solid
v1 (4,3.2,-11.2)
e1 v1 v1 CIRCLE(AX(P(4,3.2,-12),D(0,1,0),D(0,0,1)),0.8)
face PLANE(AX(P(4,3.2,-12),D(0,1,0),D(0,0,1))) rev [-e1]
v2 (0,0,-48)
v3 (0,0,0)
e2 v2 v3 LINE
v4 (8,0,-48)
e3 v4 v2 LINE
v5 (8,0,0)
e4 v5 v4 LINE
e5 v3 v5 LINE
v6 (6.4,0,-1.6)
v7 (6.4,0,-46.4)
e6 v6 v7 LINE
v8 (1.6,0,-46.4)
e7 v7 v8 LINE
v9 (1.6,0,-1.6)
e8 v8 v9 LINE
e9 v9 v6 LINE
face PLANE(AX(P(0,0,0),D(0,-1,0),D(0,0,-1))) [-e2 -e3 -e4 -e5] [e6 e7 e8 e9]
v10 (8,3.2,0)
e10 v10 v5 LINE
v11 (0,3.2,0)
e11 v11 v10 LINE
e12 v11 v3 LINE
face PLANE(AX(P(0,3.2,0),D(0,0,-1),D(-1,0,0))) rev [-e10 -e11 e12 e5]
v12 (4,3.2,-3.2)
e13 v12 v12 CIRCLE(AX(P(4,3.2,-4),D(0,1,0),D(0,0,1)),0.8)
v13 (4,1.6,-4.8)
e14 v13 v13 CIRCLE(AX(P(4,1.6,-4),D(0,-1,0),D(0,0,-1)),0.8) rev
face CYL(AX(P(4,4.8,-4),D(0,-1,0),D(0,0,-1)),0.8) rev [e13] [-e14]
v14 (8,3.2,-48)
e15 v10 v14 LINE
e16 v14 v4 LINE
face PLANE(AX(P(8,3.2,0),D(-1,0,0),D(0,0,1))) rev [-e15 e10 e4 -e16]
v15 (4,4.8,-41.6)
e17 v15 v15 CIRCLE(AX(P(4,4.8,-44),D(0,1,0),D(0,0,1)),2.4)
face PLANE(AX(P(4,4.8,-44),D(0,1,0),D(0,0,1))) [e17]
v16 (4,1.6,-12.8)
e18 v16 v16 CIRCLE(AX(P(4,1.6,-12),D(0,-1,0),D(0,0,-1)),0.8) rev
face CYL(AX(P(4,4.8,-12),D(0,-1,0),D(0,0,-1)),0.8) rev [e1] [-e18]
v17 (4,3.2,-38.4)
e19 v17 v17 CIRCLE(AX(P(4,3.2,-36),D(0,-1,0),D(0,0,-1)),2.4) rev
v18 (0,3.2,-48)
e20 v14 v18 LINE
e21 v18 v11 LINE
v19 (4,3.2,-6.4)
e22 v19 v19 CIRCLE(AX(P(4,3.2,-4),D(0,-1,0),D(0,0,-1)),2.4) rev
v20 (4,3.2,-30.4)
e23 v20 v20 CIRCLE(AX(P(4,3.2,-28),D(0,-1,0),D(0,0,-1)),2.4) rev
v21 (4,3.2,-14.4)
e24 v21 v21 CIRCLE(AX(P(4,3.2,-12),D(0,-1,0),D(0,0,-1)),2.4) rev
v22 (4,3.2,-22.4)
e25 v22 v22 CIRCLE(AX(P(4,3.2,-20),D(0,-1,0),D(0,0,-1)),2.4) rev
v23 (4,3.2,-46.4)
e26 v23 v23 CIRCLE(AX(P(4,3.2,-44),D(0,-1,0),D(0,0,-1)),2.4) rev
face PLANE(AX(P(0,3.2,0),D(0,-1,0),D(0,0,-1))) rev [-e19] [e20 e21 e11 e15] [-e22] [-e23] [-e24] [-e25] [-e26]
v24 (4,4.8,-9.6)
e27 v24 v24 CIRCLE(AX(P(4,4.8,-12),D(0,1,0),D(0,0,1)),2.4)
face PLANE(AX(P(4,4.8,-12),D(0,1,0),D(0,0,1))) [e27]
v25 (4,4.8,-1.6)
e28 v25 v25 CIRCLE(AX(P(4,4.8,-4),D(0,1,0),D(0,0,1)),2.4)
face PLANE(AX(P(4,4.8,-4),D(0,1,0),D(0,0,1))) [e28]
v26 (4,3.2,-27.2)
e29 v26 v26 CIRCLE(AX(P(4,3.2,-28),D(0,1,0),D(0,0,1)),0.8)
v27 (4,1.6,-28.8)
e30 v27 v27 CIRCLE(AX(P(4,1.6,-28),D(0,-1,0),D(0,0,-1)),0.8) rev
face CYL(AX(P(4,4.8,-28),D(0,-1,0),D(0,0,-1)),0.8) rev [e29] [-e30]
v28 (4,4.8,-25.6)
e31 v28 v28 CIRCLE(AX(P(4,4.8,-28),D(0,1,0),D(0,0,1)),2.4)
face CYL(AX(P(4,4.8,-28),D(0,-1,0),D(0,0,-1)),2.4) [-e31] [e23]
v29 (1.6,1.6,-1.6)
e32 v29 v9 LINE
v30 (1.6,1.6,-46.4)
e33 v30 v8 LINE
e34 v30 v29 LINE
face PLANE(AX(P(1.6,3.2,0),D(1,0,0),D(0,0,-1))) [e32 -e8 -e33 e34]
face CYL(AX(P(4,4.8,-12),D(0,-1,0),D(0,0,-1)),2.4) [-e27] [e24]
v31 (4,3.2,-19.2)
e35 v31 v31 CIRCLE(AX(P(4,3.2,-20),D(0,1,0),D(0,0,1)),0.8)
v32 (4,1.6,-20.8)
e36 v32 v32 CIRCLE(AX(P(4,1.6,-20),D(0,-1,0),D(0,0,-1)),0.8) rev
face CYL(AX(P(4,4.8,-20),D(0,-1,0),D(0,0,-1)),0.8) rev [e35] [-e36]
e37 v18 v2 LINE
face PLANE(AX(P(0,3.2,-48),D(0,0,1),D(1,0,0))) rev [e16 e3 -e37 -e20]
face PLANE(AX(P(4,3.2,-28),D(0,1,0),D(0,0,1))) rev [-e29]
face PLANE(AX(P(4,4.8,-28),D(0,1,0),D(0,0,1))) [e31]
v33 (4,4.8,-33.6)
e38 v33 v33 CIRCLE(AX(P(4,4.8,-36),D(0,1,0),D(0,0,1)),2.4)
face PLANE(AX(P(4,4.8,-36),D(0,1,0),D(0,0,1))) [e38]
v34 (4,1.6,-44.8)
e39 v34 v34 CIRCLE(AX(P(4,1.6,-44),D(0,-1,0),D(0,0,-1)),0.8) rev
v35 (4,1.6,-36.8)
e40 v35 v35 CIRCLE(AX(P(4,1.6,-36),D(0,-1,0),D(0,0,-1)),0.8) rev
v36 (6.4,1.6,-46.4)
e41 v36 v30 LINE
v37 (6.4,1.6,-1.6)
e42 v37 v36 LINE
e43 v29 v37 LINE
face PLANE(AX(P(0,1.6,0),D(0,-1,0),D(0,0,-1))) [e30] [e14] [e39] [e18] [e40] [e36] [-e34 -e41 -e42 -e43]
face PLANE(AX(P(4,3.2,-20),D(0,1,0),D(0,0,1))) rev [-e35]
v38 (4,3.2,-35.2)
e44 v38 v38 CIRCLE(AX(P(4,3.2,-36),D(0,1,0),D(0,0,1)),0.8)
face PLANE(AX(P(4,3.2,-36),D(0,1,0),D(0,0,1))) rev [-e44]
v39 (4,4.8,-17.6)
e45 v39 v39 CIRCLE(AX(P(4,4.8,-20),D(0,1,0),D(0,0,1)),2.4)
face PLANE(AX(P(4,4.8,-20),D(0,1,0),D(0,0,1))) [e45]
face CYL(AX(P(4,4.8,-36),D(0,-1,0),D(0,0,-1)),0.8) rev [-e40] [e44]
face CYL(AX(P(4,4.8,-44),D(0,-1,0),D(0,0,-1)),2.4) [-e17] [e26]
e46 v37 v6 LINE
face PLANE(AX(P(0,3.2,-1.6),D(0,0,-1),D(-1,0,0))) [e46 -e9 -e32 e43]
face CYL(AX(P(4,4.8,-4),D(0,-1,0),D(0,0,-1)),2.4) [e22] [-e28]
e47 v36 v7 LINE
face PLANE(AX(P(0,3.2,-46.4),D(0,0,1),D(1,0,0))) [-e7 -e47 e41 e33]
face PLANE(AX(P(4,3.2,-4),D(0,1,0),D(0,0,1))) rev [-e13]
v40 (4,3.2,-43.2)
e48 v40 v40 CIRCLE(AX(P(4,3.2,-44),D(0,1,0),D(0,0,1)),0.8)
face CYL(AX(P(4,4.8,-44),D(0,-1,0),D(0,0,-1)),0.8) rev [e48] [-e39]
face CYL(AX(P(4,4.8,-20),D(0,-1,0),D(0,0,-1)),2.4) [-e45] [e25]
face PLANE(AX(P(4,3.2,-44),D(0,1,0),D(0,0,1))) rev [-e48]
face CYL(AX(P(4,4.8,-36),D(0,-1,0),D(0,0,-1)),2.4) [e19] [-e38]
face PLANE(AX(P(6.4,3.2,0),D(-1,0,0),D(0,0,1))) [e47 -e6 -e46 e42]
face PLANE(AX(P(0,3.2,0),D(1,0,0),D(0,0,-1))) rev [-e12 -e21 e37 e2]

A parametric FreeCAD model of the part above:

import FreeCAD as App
import Part
import Sketcher

V = App.Vector


def faces_at(feature, points):
    """Names of the faces that lie closest to the given points."""
    faces = feature.Shape.Faces
    near = lambda p: min(range(len(faces)), key=lambda i: faces[i].distToShape(Part.Vertex(*p))[0])
    return sorted({f"Face{near(p) + 1}" for p in points})

doc = App.newDocument("Part")
body = doc.addObject("PartDesign::Body", "Body")

# Sketch on XZ plane
sketch1 = body.newObject("Sketcher::SketchObject", "Sketch")
sketch1.AttachmentSupport = (doc.getObject("XZ_Plane"), [""])
sketch1.MapMode = "FlatFace"
sketch1.addGeometry([
    Part.LineSegment(V(0, -48, 0), V(0, 0, 0)),
    Part.LineSegment(V(0, 0, 0), V(8, 0, 0)),
    Part.LineSegment(V(8, 0, 0), V(8, -48, 0)),
    Part.LineSegment(V(8, -48, 0), V(0, -48, 0)),
], False)
sketch1.addConstraint([
    Sketcher.Constraint("Coincident", 0, 2, 1, 1),
    Sketcher.Constraint("Coincident", 1, 2, 2, 1),
    Sketcher.Constraint("Coincident", 2, 2, 3, 1),
    Sketcher.Constraint("Coincident", 3, 2, 0, 1),
    Sketcher.Constraint("Vertical", 0),
    Sketcher.Constraint("Horizontal", 1),
    Sketcher.Constraint("Vertical", 2),
    Sketcher.Constraint("Horizontal", 3),
    Sketcher.Constraint("Coincident", 0, 2, -1, 1),
    Sketcher.Constraint("DistanceX", 1, 1, 1, 2, 8.0),
    Sketcher.Constraint("DistanceY", 0, 1, 0, 2, 48.0),
])
pad1 = body.newObject("PartDesign::Pad", "Pad")
pad1.Profile = sketch1
pad1.Length = 3.2
pad1.Reversed = True

# Sketch on XZ plane
sketch2 = body.newObject("Sketcher::SketchObject", "Sketch001")
sketch2.AttachmentSupport = (doc.getObject("XZ_Plane"), [""])
sketch2.MapMode = "FlatFace"
sketch2.AttachmentOffset = App.Placement(V(0, 0, -3.2), App.Rotation())
sketch2.addGeometry(Part.Circle(V(4, -4, 0), V(0, 0, 1), 2.4), False)
sketch2.addConstraint([
    Sketcher.Constraint("Diameter", 0, 4.8),
    Sketcher.Constraint("DistanceX", -1, 1, 0, 3, 4.0),
    Sketcher.Constraint("DistanceY", 0, 3, -1, 1, 4.0),
])
pad2 = body.newObject("PartDesign::Pad", "Pad001")
pad2.Profile = sketch2
pad2.Length = 1.6
pad2.Reversed = True
doc.recompute()

linearpattern = body.newObject("PartDesign::LinearPattern", "LinearPattern")
linearpattern.Originals = [pad2]
linearpattern.Direction = (doc.getObject("Z_Axis"), [""])
linearpattern.Mode = "offset"
linearpattern.Offset = 8
linearpattern.Occurrences = 6
linearpattern.Reversed = True
body.Tip = linearpattern
doc.recompute()

thickness = body.newObject("PartDesign::Thickness", "Thickness")
thickness.Base = (linearpattern, faces_at(linearpattern, [(4, 0, -24)]))
thickness.Value = 1.6
thickness.Reversed = True
thickness.Join = "Intersection"

doc.recompute()
